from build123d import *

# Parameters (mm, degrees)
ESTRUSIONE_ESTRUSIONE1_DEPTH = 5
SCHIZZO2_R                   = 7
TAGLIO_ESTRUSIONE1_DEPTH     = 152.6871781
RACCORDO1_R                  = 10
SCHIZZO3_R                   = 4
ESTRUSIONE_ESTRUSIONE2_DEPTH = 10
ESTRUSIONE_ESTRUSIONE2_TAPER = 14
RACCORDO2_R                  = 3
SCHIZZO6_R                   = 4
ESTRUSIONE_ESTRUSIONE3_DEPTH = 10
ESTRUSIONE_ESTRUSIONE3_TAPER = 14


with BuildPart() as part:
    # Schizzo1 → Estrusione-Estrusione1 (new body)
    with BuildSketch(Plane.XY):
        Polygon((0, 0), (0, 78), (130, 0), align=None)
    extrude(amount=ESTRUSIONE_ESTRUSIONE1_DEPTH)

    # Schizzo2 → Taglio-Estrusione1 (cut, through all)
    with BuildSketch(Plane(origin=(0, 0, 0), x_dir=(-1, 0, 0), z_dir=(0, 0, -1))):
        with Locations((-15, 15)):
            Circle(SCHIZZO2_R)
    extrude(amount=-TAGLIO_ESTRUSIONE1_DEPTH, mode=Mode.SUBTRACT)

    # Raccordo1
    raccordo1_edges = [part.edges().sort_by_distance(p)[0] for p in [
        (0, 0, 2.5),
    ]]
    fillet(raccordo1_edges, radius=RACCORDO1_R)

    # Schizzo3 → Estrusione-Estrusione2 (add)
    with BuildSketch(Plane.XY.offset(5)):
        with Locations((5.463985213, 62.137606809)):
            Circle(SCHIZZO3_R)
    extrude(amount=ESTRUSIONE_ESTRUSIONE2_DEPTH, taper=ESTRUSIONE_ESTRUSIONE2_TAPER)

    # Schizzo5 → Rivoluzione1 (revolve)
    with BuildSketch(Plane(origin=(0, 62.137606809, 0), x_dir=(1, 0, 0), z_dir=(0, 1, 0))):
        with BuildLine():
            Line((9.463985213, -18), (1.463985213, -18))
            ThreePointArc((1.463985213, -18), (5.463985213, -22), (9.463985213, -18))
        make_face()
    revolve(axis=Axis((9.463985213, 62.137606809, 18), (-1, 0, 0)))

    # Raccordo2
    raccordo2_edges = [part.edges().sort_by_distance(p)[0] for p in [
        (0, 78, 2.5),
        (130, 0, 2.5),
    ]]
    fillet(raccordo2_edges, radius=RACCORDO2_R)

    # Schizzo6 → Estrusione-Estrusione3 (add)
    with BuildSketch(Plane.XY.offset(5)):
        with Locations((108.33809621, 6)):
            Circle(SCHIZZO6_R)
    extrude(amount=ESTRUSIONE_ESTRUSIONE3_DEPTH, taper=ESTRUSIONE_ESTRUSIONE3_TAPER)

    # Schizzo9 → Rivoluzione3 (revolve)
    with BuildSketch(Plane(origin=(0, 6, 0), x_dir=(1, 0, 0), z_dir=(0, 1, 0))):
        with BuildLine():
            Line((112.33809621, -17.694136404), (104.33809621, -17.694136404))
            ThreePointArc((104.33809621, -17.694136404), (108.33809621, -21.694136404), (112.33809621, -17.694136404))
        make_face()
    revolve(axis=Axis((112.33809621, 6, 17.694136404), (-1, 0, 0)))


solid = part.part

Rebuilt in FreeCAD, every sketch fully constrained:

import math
import FreeCAD as App
import Part
import Sketcher

V = App.Vector
Q = App.Units.Quantity


def edges_at(feature, points):
    """Names of the edges that pass closest to the given points."""
    edges = feature.Shape.Edges
    near = lambda p: min(range(len(edges)), key=lambda i: edges[i].distToShape(Part.Vertex(*p))[0])
    return sorted({f"Edge{near(p) + 1}" for p in points})

doc = App.newDocument("Part")
body = doc.addObject("PartDesign::Body", "Body")

# Sketch on XY plane
sketch1 = body.newObject("Sketcher::SketchObject", "Sketch")
sketch1.AttachmentSupport = (doc.getObject("XY_Plane"), [""])
sketch1.MapMode = "FlatFace"
sketch1.addGeometry(Part.LineSegment(V(0, 78, 0), V(0, 0, 0)), False)
sketch1.addGeometry(Part.LineSegment(V(0, 0, 0), V(130, 0, 0)), False)
sketch1.addGeometry(Part.LineSegment(V(130, 0, 0), V(0, 78, 0)), False)
sketch1.addConstraint(Sketcher.Constraint("Coincident", 0, 2, 1, 1))
sketch1.addConstraint(Sketcher.Constraint("Coincident", 1, 2, 2, 1))
sketch1.addConstraint(Sketcher.Constraint("Coincident", 2, 2, 0, 1))
sketch1.addConstraint(Sketcher.Constraint("Vertical", 0))
sketch1.addConstraint(Sketcher.Constraint("Horizontal", 1))
sketch1.addConstraint(Sketcher.Constraint("Coincident", 0, 2, -1, 1))
sketch1.addConstraint(Sketcher.Constraint("DistanceX", 1, 1, 1, 2, Q("130 mm")))
sketch1.addConstraint(Sketcher.Constraint("DistanceY", 0, 2, 0, 1, Q("78 mm")))
pad1 = body.newObject("PartDesign::Pad", "Pad")
pad1.Profile = sketch1
pad1.Length = 5

# Sketch on XY plane
sketch2 = body.newObject("Sketcher::SketchObject", "Sketch001")
sketch2.AttachmentSupport = (doc.getObject("XY_Plane"), [""])
sketch2.MapMode = "FlatFace"
sketch2.addGeometry(Part.Circle(V(15, 15, 0), V(0, 0, 1), 7), False)
sketch2.addConstraint(Sketcher.Constraint("Diameter", 0, Q("14 mm")))
sketch2.addConstraint(Sketcher.Constraint("DistanceX", -1, 1, 0, 3, Q("15 mm")))
sketch2.addConstraint(Sketcher.Constraint("DistanceY", -1, 1, 0, 3, Q("15 mm")))
pocket1 = body.newObject("PartDesign::Pocket", "Pocket")
pocket1.Profile = sketch2
pocket1.Type = "ThroughAll"
pocket1.Reversed = True
doc.recompute()

fillet = body.newObject("PartDesign::Fillet", "Fillet")
fillet.Base = (pocket1, edges_at(pocket1, [(0, 0, 2.5)]))
fillet.Radius = 10

# Sketch on XY plane
sketch3 = body.newObject("Sketcher::SketchObject", "Sketch002")
sketch3.AttachmentSupport = (doc.getObject("XY_Plane"), [""])
sketch3.MapMode = "FlatFace"
sketch3.AttachmentOffset = App.Placement(V(0, 0, 5), App.Rotation())
sketch3.addGeometry(Part.Circle(V(5.5, 62.1, 0), V(0, 0, 1), 4), False)
sketch3.addConstraint(Sketcher.Constraint("Diameter", 0, Q("8 mm")))
sketch3.addConstraint(Sketcher.Constraint("DistanceX", -1, 1, 0, 3, Q("5.463985 mm")))
sketch3.addConstraint(Sketcher.Constraint("DistanceY", -1, 1, 0, 3, Q("62.137607 mm")))
pad2 = body.newObject("PartDesign::Pad", "Pad001")
pad2.Profile = sketch3
pad2.Length = 10
pad2.TaperAngle = -14

# Sketch on XZ plane
sketch4 = body.newObject("Sketcher::SketchObject", "Sketch003")
sketch4.AttachmentSupport = (doc.getObject("XZ_Plane"), [""])
sketch4.MapMode = "FlatFace"
sketch4.AttachmentOffset = App.Placement(V(0, 0, -62.137607), App.Rotation())
sketch4.addGeometry(Part.LineSegment(V(9.5, 18, 0), V(1.5, 18, 0)), False)
sketch4.addGeometry(Part.ArcOfCircle(Part.Circle(V(5.5, 18, 0), V(0, 0, 1), 4), math.radians(0), math.radians(180)), False)
sketch4.addGeometry(Part.LineSegment(V(9.5, 18, 0), V(1.5, 18, 0)), True)  # axis
sketch4.addConstraint(Sketcher.Constraint("Coincident", 0, 1, 1, 1))
sketch4.addConstraint(Sketcher.Constraint("Coincident", 1, 2, 0, 2))
sketch4.addConstraint(Sketcher.Constraint("Horizontal", 0))
sketch4.addConstraint(Sketcher.Constraint("Horizontal", 2))
sketch4.addConstraint(Sketcher.Constraint("Coincident", 2, 1, 0, 1))
sketch4.addConstraint(Sketcher.Constraint("Horizontal", 1, 3, 0, 1))
sketch4.addConstraint(Sketcher.Constraint("Equal", 0, 2))
sketch4.addConstraint(Sketcher.Constraint("Radius", 1, Q("4 mm")))
sketch4.addConstraint(Sketcher.Constraint("DistanceY", -1, 1, 1, 3, Q("18 mm")))
sketch4.addConstraint(Sketcher.Constraint("DistanceX", -1, 1, 1, 3, Q("5.463985 mm")))
revolution = body.newObject("PartDesign::Revolution", "Revolution")
revolution.Profile = sketch4
revolution.ReferenceAxis = (sketch4, ["Axis0"])
revolution.Angle = 360
doc.recompute()

fillet2 = body.newObject("PartDesign::Fillet", "Fillet001")
fillet2.Base = (revolution, edges_at(revolution, [(0, 78, 2.5), (130, 0, 2.5)]))
fillet2.Radius = 3

# Sketch on XY plane
sketch5 = body.newObject("Sketcher::SketchObject", "Sketch004")
sketch5.AttachmentSupport = (doc.getObject("XY_Plane"), [""])
sketch5.MapMode = "FlatFace"
sketch5.AttachmentOffset = App.Placement(V(0, 0, 5), App.Rotation())
sketch5.addGeometry(Part.Circle(V(108.3, 6, 0), V(0, 0, 1), 4), False)
sketch5.addConstraint(Sketcher.Constraint("Diameter", 0, Q("8 mm")))
sketch5.addConstraint(Sketcher.Constraint("DistanceY", -1, 1, 0, 3, Q("6 mm")))
sketch5.addConstraint(Sketcher.Constraint("DistanceX", -1, 1, 0, 3, Q("108.338096 mm")))
pad3 = body.newObject("PartDesign::Pad", "Pad002")
pad3.Profile = sketch5
pad3.Length = 10
pad3.TaperAngle = -14

# Sketch on XZ plane
sketch6 = body.newObject("Sketcher::SketchObject", "Sketch005")
sketch6.AttachmentSupport = (doc.getObject("XZ_Plane"), [""])
sketch6.MapMode = "FlatFace"
sketch6.AttachmentOffset = App.Placement(V(0, 0, -6), App.Rotation())
sketch6.addGeometry(Part.LineSegment(V(112.3, 17.7, 0), V(104.3, 17.7, 0)), False)
sketch6.addGeometry(Part.ArcOfCircle(Part.Circle(V(108.3, 17.7, 0), V(0, 0, 1), 4), math.radians(0), math.radians(180)), False)
sketch6.addGeometry(Part.LineSegment(V(112.3, 17.7, 0), V(104.3, 17.7, 0)), True)  # axis
sketch6.addConstraint(Sketcher.Constraint("Coincident", 0, 1, 1, 1))
sketch6.addConstraint(Sketcher.Constraint("Coincident", 1, 2, 0, 2))
sketch6.addConstraint(Sketcher.Constraint("Horizontal", 0))
sketch6.addConstraint(Sketcher.Constraint("Horizontal", 2))
sketch6.addConstraint(Sketcher.Constraint("Coincident", 2, 1, 0, 1))
sketch6.addConstraint(Sketcher.Constraint("Horizontal", 1, 3, 0, 1))
sketch6.addConstraint(Sketcher.Constraint("Equal", 0, 2))
sketch6.addConstraint(Sketcher.Constraint("Radius", 1, Q("4 mm")))
sketch6.addConstraint(Sketcher.Constraint("DistanceX", -1, 1, 1, 3, Q("108.338096 mm")))
sketch6.addConstraint(Sketcher.Constraint("DistanceY", -1, 1, 1, 3, Q("17.694136 mm")))
revolution2 = body.newObject("PartDesign::Revolution", "Revolution001")
revolution2.Profile = sketch6
revolution2.ReferenceAxis = (sketch6, ["Axis0"])
revolution2.Angle = 360

doc.recompute()
